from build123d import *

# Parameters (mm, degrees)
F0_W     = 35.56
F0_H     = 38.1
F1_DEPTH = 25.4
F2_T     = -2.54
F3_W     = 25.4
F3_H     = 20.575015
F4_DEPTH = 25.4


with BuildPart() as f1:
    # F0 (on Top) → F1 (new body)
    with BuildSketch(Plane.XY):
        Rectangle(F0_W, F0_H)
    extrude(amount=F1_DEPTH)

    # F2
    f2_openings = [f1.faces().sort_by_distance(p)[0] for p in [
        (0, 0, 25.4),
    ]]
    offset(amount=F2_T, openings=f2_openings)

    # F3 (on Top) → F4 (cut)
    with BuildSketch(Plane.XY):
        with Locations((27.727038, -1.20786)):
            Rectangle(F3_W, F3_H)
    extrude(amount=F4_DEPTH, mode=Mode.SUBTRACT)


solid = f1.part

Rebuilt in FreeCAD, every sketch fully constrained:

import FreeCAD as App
import Part
import Sketcher

V = App.Vector
Q = App.Units.Quantity


def faces_at(feature, points):
    """Names of the faces that lie closest to the given points."""
    faces = feature.Shape.Faces
    near = lambda p: min(range(len(faces)), key=lambda i: faces[i].distToShape(Part.Vertex(*p))[0])
    return sorted({f"Face{near(p) + 1}" for p in points})

doc = App.newDocument("Part")
body = doc.addObject("PartDesign::Body", "Body")

# Sketch on XY plane
sketch1 = doc.addObject("Sketcher::SketchObject", "Sketch")
body.addObject(sketch1)
sketch1.AttachmentSupport = (doc.XY_Plane, [""])
sketch1.MapMode = "FlatFace"
sketch1.addGeometry([
    Part.LineSegment(V(-17.78, 19.05, 0), V(-17.78, -19.05, 0)),
    Part.LineSegment(V(-17.78, -19.05, 0), V(17.78, -19.05, 0)),
    Part.LineSegment(V(17.78, -19.05, 0), V(17.78, 19.05, 0)),
    Part.LineSegment(V(17.78, 19.05, 0), V(-17.78, 19.05, 0)),
], False)
sketch1.addConstraint([
    Sketcher.Constraint("Coincident", 0, 2, 1, 1),
    Sketcher.Constraint("Coincident", 1, 2, 2, 1),
    Sketcher.Constraint("Coincident", 2, 2, 3, 1),
    Sketcher.Constraint("Coincident", 3, 2, 0, 1),
    Sketcher.Constraint("Vertical", 0),
    Sketcher.Constraint("Horizontal", 1),
    Sketcher.Constraint("Vertical", 2),
    Sketcher.Constraint("Horizontal", 3),
    Sketcher.Constraint("Symmetric", 0, 2, 2, 2, -1, 1),
    Sketcher.Constraint("DistanceX", 1, 1, 1, 2, Q("1.4 in")),
    Sketcher.Constraint("DistanceY", 0, 2, 0, 1, Q("1.5 in")),
])
pad1 = doc.addObject("PartDesign::Pad", "Pad")
body.addObject(pad1)
pad1.Profile = sketch1
pad1.Length = Q("1 in")
doc.recompute()

thickness = doc.addObject("PartDesign::Thickness", "Thickness")
body.addObject(thickness)
thickness.Base = (pad1, faces_at(pad1, [(0, 0, 25.4)]))
thickness.Value = Q("0.1 in")
thickness.Reversed = True
thickness.Join = "Arc"

# Sketch on XY plane
sketch2 = doc.addObject("Sketcher::SketchObject", "Sketch001")
body.addObject(sketch2)
sketch2.AttachmentSupport = (doc.XY_Plane, [""])
sketch2.MapMode = "FlatFace"
sketch2.addGeometry([
    Part.LineSegment(V(15.027038, 9.079648, 0), V(15.027038, -11.495368, 0)),
    Part.LineSegment(V(15.027038, -11.495368, 0), V(40.427038, -11.495368, 0)),
    Part.LineSegment(V(40.427038, -11.495368, 0), V(40.427038, 9.079648, 0)),
    Part.LineSegment(V(40.427038, 9.079648, 0), V(15.027038, 9.079648, 0)),
], False)
sketch2.addConstraint([
    Sketcher.Constraint("Coincident", 0, 2, 1, 1),
    Sketcher.Constraint("Coincident", 1, 2, 2, 1),
    Sketcher.Constraint("Coincident", 2, 2, 3, 1),
    Sketcher.Constraint("Coincident", 3, 2, 0, 1),
    Sketcher.Constraint("Vertical", 0),
    Sketcher.Constraint("Horizontal", 1),
    Sketcher.Constraint("Vertical", 2),
    Sketcher.Constraint("Horizontal", 3),
    Sketcher.Constraint("DistanceX", 1, 1, 1, 2, Q("1 in")),
    Sketcher.Constraint("DistanceY", 0, 2, 0, 1, 20.575015),
    Sketcher.Constraint("DistanceX", -1, 1, 1, 2, 40.427038),
    Sketcher.Constraint("DistanceY", 0, 2, -1, 1, 11.495368),
])
pocket1 = doc.addObject("PartDesign::Pocket", "Pocket")
body.addObject(pocket1)
pocket1.Profile = sketch2
pocket1.Length = Q("1 in")
pocket1.Reversed = True

doc.recompute()
